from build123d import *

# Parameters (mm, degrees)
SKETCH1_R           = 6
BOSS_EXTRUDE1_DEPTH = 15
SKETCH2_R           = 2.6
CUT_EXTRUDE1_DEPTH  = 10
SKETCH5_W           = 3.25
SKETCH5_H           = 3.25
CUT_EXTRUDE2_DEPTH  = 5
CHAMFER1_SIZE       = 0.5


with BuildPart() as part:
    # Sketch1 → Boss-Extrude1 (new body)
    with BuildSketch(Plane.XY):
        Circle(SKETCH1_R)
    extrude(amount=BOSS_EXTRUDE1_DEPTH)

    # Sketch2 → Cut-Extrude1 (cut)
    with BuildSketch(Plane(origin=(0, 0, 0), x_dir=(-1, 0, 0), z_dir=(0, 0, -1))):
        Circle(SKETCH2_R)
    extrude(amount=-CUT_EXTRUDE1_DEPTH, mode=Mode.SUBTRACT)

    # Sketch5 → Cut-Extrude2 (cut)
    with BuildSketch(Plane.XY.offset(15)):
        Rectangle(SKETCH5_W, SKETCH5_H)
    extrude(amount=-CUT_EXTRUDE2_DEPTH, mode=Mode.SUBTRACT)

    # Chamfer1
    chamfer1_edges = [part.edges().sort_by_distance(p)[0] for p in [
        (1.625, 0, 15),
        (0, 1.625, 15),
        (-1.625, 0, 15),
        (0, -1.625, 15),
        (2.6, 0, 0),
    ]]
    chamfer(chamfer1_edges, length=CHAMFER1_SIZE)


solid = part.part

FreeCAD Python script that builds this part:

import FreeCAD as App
import Part
import Sketcher


def edges_at(feature, points):
    """Names of the edges that pass closest to the given points."""
    edges = feature.Shape.Edges
    near = lambda p: min(range(len(edges)), key=lambda i: edges[i].distToShape(Part.Vertex(*p))[0])
    return sorted({f"Edge{near(p) + 1}" for p in points})


def add_polygon(sketch, points):
    """Adds a closed chain of lines whose ends are joined by coincident constraints."""
    first, n = sketch.GeometryCount, len(points)
    for a, b in zip(points, points[1:] + points[:1]):
        sketch.addGeometry(Part.LineSegment(App.Vector(*a, 0), App.Vector(*b, 0)), False)
    for i in range(n):
        sketch.addConstraint(Sketcher.Constraint("Coincident", first + i, 2, first + (i + 1) % n, 1))

doc = App.newDocument("Part")
body = doc.addObject("PartDesign::Body", "Body")

# Sketch on XY plane
sketch1 = body.newObject("Sketcher::SketchObject", "Sketch")
sketch1.AttachmentSupport = (doc.getObject("XY_Plane"), [""])
sketch1.MapMode = "FlatFace"
sketch1.addGeometry(Part.Circle(App.Vector(0, 0, 0), App.Vector(0, 0, 1), 6), False)
sketch1.addConstraint([
    Sketcher.Constraint("Coincident", 0, 3, -1, 1),
    Sketcher.Constraint("Diameter", 0, 12.0),
])
pad1 = body.newObject("PartDesign::Pad", "Pad")
pad1.Profile = sketch1
pad1.Length = 15

# Sketch on XY plane
sketch2 = body.newObject("Sketcher::SketchObject", "Sketch001")
sketch2.AttachmentSupport = (doc.getObject("XY_Plane"), [""])
sketch2.MapMode = "FlatFace"
sketch2.addGeometry(Part.Circle(App.Vector(0, 0, 0), App.Vector(0, 0, 1), 2.6), False)
sketch2.addConstraint([
    Sketcher.Constraint("Coincident", 0, 3, -1, 1),
    Sketcher.Constraint("Diameter", 0, 5.2),
])
pocket1 = body.newObject("PartDesign::Pocket", "Pocket")
pocket1.Profile = sketch2
pocket1.Length = 10
pocket1.Reversed = True

# Sketch on XY plane
sketch3 = body.newObject("Sketcher::SketchObject", "Sketch002")
sketch3.AttachmentSupport = (doc.getObject("XY_Plane"), [""])
sketch3.MapMode = "FlatFace"
sketch3.AttachmentOffset = App.Placement(App.Vector(0, 0, 15), App.Rotation())
add_polygon(sketch3, [(-1.6, 1.6), (-1.6, -1.6), (1.6, -1.6), (1.6, 1.6)])  # lines 0-3
sketch3.addConstraint([
    Sketcher.Constraint("Vertical", 0),
    Sketcher.Constraint("Horizontal", 1),
    Sketcher.Constraint("Vertical", 2),
    Sketcher.Constraint("Horizontal", 3),
    Sketcher.Constraint("Symmetric", 0, 2, 2, 2, -1, 1),
    Sketcher.Constraint("Equal", 3, 0),
    Sketcher.Constraint("DistanceX", 1, 1, 1, 2, 3.25),
])
pocket2 = body.newObject("PartDesign::Pocket", "Pocket001")
pocket2.Profile = sketch3
pocket2.Length = 5
doc.recompute()

chamfer = body.newObject("PartDesign::Chamfer", "Chamfer")
chamfer.Base = (pocket2, edges_at(pocket2, [
    (1.625, 0, 15),
    (0, 1.625, 15),
    (-1.625, 0, 15),
    (0, -1.625, 15),
    (2.6, 0, 0),
]))
chamfer.Size = 0.5

doc.recompute()
